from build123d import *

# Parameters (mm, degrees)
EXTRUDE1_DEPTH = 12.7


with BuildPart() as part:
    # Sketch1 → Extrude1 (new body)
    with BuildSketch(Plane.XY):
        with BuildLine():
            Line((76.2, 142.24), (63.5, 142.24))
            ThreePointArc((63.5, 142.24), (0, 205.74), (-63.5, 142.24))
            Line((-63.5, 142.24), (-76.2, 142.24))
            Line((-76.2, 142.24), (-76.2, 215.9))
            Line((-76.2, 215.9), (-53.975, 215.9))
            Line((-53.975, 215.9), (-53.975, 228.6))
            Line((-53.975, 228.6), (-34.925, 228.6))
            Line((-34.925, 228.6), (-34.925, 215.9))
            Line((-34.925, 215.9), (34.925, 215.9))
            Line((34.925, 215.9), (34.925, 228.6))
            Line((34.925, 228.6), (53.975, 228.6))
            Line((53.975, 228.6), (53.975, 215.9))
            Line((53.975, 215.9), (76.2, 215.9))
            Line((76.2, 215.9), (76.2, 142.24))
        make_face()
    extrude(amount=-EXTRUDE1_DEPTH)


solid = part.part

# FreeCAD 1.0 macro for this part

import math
import FreeCAD as App
import Part
import Sketcher
Q = App.Units.Quantity

doc = App.newDocument("Part")
body = doc.addObject("PartDesign::Body", "Body")

sketch1 = body.newObject("Sketcher::SketchObject", "Sketch")
sketch1.AttachmentSupport = (doc.getObject("XY_Plane"), [""])
sketch1.MapMode = "FlatFace"
sketch1.addGeometry([
    Part.LineSegment(App.Vector(64, 142, 0), App.Vector(76, 142, 0)),
    Part.LineSegment(App.Vector(76, 142, 0), App.Vector(76, 216, 0)),
    Part.LineSegment(App.Vector(76, 216, 0), App.Vector(54, 216, 0)),
    Part.LineSegment(App.Vector(54, 216, 0), App.Vector(54, 229, 0)),
    Part.LineSegment(App.Vector(54, 229, 0), App.Vector(35, 229, 0)),
    Part.LineSegment(App.Vector(35, 229, 0), App.Vector(35, 216, 0)),
    Part.LineSegment(App.Vector(35, 216, 0), App.Vector(-35, 216, 0)),
    Part.LineSegment(App.Vector(-35, 216, 0), App.Vector(-35, 229, 0)),
    Part.LineSegment(App.Vector(-35, 229, 0), App.Vector(-54, 229, 0)),
    Part.LineSegment(App.Vector(-54, 229, 0), App.Vector(-54, 216, 0)),
    Part.LineSegment(App.Vector(-54, 216, 0), App.Vector(-76, 216, 0)),
    Part.LineSegment(App.Vector(-76, 216, 0), App.Vector(-76, 142, 0)),
    Part.LineSegment(App.Vector(-76, 142, 0), App.Vector(-64, 142, 0)),
    Part.ArcOfCircle(Part.Circle(App.Vector(0, 142, 0), App.Vector(0, 0, 1), 64), math.radians(0), math.radians(180)),
], False)
sketch1.addConstraint([
    Sketcher.Constraint("Coincident", 0, 2, 1, 1),
    Sketcher.Constraint("Coincident", 1, 2, 2, 1),
    Sketcher.Constraint("Coincident", 2, 2, 3, 1),
    Sketcher.Constraint("Coincident", 3, 2, 4, 1),
    Sketcher.Constraint("Coincident", 4, 2, 5, 1),
    Sketcher.Constraint("Coincident", 5, 2, 6, 1),
    Sketcher.Constraint("Coincident", 6, 2, 7, 1),
    Sketcher.Constraint("Coincident", 7, 2, 8, 1),
    Sketcher.Constraint("Coincident", 8, 2, 9, 1),
    Sketcher.Constraint("Coincident", 9, 2, 10, 1),
    Sketcher.Constraint("Coincident", 10, 2, 11, 1),
    Sketcher.Constraint("Coincident", 11, 2, 12, 1),
    Sketcher.Constraint("Coincident", 12, 2, 13, 2),
    Sketcher.Constraint("Coincident", 13, 1, 0, 1),
    Sketcher.Constraint("Horizontal", 0),
    Sketcher.Constraint("Vertical", 1),
    Sketcher.Constraint("Horizontal", 2),
    Sketcher.Constraint("Vertical", 3),
    Sketcher.Constraint("Horizontal", 4),
    Sketcher.Constraint("Vertical", 5),
    Sketcher.Constraint("Horizontal", 6),
    Sketcher.Constraint("Vertical", 7),
    Sketcher.Constraint("Horizontal", 8),
    Sketcher.Constraint("Vertical", 9),
    Sketcher.Constraint("Horizontal", 10),
    Sketcher.Constraint("Vertical", 11),
    Sketcher.Constraint("Horizontal", 12),
    Sketcher.Constraint("Symmetric", 4, 2, 7, 2, -2),
    Sketcher.Constraint("Symmetric", 2, 2, 9, 2, -2),
    Sketcher.Constraint("Symmetric", 0, 2, 11, 2, -2),
    Sketcher.Constraint("PointOnObject", 13, 3, -2),
    Sketcher.Constraint("Horizontal", 13, 3, 0, 2),
    Sketcher.Constraint("Horizontal", 2, 2, 5, 2),
    Sketcher.Constraint("Equal", 12, 3),
    Sketcher.Constraint("Radius", 13, Q("2.5 in")),
    Sketcher.Constraint("DistanceX", 0, 1, 0, 2, Q("0.5 in")),
    Sketcher.Constraint("DistanceY", 1, 1, 1, 2, Q("2.9 in")),
    Sketcher.Constraint("DistanceY", -1, 1, 3, 2, Q("9 in")),
    Sketcher.Constraint("DistanceX", 4, 2, 4, 1, Q("0.75 in")),
    Sketcher.Constraint("DistanceX", 6, 2, 6, 1, Q("2.75 in")),
])
pad1 = body.newObject("PartDesign::Pad", "Pad")
pad1.Profile = sketch1
pad1.Length = Q("0.5 in")
pad1.Reversed = True

doc.recompute()
